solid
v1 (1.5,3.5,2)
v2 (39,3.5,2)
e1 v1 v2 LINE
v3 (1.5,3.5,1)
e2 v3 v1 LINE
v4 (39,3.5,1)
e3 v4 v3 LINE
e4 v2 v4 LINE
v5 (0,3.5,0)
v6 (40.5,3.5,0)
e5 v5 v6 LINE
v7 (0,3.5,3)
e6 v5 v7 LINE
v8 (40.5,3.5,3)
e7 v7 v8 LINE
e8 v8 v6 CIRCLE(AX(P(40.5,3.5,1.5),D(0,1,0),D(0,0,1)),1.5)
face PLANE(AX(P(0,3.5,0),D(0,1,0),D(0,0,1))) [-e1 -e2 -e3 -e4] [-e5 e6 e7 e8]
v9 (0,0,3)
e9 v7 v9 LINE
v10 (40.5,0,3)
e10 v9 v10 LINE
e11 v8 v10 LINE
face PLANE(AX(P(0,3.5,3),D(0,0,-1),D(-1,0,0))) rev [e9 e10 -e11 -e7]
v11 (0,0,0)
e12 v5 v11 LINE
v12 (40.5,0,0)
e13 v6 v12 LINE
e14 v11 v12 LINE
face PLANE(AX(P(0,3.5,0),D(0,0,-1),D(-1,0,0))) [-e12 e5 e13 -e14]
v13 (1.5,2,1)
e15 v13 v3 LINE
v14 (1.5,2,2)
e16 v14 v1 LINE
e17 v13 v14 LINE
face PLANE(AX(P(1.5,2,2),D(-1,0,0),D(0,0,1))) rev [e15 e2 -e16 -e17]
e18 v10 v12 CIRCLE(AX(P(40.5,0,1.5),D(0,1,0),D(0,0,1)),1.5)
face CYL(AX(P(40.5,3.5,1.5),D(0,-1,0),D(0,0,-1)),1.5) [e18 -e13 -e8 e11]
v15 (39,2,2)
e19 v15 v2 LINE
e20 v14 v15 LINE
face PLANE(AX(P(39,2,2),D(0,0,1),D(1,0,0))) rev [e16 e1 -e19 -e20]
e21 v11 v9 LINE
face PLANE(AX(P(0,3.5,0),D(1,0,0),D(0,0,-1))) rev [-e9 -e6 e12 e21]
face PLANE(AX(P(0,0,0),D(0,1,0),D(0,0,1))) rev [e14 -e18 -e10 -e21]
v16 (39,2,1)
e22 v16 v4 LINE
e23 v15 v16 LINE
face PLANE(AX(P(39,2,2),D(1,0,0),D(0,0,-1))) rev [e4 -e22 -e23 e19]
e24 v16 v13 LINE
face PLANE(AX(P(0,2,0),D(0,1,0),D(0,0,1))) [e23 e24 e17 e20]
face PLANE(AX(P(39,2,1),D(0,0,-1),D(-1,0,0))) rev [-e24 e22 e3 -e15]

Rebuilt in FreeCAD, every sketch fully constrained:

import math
import FreeCAD as App
import Part
import Sketcher

doc = App.newDocument("Part")
body = doc.addObject("PartDesign::Body", "Body")

sketch1 = doc.addObject("Sketcher::SketchObject", "Sketch")
body.addObject(sketch1)
sketch1.AttachmentSupport = (doc.XZ_Plane, [""])
sketch1.MapMode = "FlatFace"
sketch1.addGeometry([
    Part.LineSegment(App.Vector(40.5, 0, 0), App.Vector(0, 0, 0)),
    Part.LineSegment(App.Vector(0, 0, 0), App.Vector(0, 3, 0)),
    Part.LineSegment(App.Vector(0, 3, 0), App.Vector(40.5, 3, 0)),
    Part.ArcOfCircle(Part.Circle(App.Vector(40.5, 1.5, 0), App.Vector(0, 0, 1), 1.5), math.radians(-90), math.radians(90)),
], False)
sketch1.addConstraint([
    Sketcher.Constraint("Coincident", 0, 2, 1, 1),
    Sketcher.Constraint("Coincident", 1, 2, 2, 1),
    Sketcher.Constraint("Tangent", 2, 2, 3, 2),
    Sketcher.Constraint("Tangent", 3, 1, 0, 1),
    Sketcher.Constraint("Horizontal", 0),
    Sketcher.Constraint("Vertical", 1),
    Sketcher.Constraint("Horizontal", 2),
    Sketcher.Constraint("Coincident", 0, 2, -1, 1),
    Sketcher.Constraint("Radius", 3, 1.5),
    Sketcher.Constraint("DistanceX", 0, 2, 0, 1, 40.5),
])
pad1 = doc.addObject("PartDesign::Pad", "Pad")
body.addObject(pad1)
pad1.Profile = sketch1
pad1.Length = 3.5
pad1.Reversed = True

sketch2 = doc.addObject("Sketcher::SketchObject", "Sketch001")
body.addObject(sketch2)
sketch2.AttachmentSupport = (doc.XZ_Plane, [""])
sketch2.MapMode = "FlatFace"
sketch2.AttachmentOffset = App.Placement(App.Vector(0, 0, -3.5), App.Rotation())
sketch2.addGeometry([
    Part.LineSegment(App.Vector(1.5, 1, 0), App.Vector(1.5, 2, 0)),
    Part.LineSegment(App.Vector(1.5, 2, 0), App.Vector(39, 2, 0)),
    Part.LineSegment(App.Vector(39, 2, 0), App.Vector(39, 1, 0)),
    Part.LineSegment(App.Vector(39, 1, 0), App.Vector(1.5, 1, 0)),
], False)
sketch2.addConstraint([
    Sketcher.Constraint("Coincident", 0, 2, 1, 1),
    Sketcher.Constraint("Coincident", 1, 2, 2, 1),
    Sketcher.Constraint("Coincident", 2, 2, 3, 1),
    Sketcher.Constraint("Coincident", 3, 2, 0, 1),
    Sketcher.Constraint("Vertical", 0),
    Sketcher.Constraint("Horizontal", 1),
    Sketcher.Constraint("Vertical", 2),
    Sketcher.Constraint("Horizontal", 3),
    Sketcher.Constraint("DistanceY", 0, 1, 0, 2, 1.0),
    Sketcher.Constraint("DistanceX", 1, 1, 1, 2, 37.5),
    Sketcher.Constraint("DistanceY", -1, 1, 0, 2, 2.0),
    Sketcher.Constraint("DistanceX", -1, 1, 1, 2, 39.0),
])
pocket1 = doc.addObject("PartDesign::Pocket", "Pocket")
body.addObject(pocket1)
pocket1.Profile = sketch2
pocket1.Length = 1.5
pocket1.Reversed = True

doc.recompute()
